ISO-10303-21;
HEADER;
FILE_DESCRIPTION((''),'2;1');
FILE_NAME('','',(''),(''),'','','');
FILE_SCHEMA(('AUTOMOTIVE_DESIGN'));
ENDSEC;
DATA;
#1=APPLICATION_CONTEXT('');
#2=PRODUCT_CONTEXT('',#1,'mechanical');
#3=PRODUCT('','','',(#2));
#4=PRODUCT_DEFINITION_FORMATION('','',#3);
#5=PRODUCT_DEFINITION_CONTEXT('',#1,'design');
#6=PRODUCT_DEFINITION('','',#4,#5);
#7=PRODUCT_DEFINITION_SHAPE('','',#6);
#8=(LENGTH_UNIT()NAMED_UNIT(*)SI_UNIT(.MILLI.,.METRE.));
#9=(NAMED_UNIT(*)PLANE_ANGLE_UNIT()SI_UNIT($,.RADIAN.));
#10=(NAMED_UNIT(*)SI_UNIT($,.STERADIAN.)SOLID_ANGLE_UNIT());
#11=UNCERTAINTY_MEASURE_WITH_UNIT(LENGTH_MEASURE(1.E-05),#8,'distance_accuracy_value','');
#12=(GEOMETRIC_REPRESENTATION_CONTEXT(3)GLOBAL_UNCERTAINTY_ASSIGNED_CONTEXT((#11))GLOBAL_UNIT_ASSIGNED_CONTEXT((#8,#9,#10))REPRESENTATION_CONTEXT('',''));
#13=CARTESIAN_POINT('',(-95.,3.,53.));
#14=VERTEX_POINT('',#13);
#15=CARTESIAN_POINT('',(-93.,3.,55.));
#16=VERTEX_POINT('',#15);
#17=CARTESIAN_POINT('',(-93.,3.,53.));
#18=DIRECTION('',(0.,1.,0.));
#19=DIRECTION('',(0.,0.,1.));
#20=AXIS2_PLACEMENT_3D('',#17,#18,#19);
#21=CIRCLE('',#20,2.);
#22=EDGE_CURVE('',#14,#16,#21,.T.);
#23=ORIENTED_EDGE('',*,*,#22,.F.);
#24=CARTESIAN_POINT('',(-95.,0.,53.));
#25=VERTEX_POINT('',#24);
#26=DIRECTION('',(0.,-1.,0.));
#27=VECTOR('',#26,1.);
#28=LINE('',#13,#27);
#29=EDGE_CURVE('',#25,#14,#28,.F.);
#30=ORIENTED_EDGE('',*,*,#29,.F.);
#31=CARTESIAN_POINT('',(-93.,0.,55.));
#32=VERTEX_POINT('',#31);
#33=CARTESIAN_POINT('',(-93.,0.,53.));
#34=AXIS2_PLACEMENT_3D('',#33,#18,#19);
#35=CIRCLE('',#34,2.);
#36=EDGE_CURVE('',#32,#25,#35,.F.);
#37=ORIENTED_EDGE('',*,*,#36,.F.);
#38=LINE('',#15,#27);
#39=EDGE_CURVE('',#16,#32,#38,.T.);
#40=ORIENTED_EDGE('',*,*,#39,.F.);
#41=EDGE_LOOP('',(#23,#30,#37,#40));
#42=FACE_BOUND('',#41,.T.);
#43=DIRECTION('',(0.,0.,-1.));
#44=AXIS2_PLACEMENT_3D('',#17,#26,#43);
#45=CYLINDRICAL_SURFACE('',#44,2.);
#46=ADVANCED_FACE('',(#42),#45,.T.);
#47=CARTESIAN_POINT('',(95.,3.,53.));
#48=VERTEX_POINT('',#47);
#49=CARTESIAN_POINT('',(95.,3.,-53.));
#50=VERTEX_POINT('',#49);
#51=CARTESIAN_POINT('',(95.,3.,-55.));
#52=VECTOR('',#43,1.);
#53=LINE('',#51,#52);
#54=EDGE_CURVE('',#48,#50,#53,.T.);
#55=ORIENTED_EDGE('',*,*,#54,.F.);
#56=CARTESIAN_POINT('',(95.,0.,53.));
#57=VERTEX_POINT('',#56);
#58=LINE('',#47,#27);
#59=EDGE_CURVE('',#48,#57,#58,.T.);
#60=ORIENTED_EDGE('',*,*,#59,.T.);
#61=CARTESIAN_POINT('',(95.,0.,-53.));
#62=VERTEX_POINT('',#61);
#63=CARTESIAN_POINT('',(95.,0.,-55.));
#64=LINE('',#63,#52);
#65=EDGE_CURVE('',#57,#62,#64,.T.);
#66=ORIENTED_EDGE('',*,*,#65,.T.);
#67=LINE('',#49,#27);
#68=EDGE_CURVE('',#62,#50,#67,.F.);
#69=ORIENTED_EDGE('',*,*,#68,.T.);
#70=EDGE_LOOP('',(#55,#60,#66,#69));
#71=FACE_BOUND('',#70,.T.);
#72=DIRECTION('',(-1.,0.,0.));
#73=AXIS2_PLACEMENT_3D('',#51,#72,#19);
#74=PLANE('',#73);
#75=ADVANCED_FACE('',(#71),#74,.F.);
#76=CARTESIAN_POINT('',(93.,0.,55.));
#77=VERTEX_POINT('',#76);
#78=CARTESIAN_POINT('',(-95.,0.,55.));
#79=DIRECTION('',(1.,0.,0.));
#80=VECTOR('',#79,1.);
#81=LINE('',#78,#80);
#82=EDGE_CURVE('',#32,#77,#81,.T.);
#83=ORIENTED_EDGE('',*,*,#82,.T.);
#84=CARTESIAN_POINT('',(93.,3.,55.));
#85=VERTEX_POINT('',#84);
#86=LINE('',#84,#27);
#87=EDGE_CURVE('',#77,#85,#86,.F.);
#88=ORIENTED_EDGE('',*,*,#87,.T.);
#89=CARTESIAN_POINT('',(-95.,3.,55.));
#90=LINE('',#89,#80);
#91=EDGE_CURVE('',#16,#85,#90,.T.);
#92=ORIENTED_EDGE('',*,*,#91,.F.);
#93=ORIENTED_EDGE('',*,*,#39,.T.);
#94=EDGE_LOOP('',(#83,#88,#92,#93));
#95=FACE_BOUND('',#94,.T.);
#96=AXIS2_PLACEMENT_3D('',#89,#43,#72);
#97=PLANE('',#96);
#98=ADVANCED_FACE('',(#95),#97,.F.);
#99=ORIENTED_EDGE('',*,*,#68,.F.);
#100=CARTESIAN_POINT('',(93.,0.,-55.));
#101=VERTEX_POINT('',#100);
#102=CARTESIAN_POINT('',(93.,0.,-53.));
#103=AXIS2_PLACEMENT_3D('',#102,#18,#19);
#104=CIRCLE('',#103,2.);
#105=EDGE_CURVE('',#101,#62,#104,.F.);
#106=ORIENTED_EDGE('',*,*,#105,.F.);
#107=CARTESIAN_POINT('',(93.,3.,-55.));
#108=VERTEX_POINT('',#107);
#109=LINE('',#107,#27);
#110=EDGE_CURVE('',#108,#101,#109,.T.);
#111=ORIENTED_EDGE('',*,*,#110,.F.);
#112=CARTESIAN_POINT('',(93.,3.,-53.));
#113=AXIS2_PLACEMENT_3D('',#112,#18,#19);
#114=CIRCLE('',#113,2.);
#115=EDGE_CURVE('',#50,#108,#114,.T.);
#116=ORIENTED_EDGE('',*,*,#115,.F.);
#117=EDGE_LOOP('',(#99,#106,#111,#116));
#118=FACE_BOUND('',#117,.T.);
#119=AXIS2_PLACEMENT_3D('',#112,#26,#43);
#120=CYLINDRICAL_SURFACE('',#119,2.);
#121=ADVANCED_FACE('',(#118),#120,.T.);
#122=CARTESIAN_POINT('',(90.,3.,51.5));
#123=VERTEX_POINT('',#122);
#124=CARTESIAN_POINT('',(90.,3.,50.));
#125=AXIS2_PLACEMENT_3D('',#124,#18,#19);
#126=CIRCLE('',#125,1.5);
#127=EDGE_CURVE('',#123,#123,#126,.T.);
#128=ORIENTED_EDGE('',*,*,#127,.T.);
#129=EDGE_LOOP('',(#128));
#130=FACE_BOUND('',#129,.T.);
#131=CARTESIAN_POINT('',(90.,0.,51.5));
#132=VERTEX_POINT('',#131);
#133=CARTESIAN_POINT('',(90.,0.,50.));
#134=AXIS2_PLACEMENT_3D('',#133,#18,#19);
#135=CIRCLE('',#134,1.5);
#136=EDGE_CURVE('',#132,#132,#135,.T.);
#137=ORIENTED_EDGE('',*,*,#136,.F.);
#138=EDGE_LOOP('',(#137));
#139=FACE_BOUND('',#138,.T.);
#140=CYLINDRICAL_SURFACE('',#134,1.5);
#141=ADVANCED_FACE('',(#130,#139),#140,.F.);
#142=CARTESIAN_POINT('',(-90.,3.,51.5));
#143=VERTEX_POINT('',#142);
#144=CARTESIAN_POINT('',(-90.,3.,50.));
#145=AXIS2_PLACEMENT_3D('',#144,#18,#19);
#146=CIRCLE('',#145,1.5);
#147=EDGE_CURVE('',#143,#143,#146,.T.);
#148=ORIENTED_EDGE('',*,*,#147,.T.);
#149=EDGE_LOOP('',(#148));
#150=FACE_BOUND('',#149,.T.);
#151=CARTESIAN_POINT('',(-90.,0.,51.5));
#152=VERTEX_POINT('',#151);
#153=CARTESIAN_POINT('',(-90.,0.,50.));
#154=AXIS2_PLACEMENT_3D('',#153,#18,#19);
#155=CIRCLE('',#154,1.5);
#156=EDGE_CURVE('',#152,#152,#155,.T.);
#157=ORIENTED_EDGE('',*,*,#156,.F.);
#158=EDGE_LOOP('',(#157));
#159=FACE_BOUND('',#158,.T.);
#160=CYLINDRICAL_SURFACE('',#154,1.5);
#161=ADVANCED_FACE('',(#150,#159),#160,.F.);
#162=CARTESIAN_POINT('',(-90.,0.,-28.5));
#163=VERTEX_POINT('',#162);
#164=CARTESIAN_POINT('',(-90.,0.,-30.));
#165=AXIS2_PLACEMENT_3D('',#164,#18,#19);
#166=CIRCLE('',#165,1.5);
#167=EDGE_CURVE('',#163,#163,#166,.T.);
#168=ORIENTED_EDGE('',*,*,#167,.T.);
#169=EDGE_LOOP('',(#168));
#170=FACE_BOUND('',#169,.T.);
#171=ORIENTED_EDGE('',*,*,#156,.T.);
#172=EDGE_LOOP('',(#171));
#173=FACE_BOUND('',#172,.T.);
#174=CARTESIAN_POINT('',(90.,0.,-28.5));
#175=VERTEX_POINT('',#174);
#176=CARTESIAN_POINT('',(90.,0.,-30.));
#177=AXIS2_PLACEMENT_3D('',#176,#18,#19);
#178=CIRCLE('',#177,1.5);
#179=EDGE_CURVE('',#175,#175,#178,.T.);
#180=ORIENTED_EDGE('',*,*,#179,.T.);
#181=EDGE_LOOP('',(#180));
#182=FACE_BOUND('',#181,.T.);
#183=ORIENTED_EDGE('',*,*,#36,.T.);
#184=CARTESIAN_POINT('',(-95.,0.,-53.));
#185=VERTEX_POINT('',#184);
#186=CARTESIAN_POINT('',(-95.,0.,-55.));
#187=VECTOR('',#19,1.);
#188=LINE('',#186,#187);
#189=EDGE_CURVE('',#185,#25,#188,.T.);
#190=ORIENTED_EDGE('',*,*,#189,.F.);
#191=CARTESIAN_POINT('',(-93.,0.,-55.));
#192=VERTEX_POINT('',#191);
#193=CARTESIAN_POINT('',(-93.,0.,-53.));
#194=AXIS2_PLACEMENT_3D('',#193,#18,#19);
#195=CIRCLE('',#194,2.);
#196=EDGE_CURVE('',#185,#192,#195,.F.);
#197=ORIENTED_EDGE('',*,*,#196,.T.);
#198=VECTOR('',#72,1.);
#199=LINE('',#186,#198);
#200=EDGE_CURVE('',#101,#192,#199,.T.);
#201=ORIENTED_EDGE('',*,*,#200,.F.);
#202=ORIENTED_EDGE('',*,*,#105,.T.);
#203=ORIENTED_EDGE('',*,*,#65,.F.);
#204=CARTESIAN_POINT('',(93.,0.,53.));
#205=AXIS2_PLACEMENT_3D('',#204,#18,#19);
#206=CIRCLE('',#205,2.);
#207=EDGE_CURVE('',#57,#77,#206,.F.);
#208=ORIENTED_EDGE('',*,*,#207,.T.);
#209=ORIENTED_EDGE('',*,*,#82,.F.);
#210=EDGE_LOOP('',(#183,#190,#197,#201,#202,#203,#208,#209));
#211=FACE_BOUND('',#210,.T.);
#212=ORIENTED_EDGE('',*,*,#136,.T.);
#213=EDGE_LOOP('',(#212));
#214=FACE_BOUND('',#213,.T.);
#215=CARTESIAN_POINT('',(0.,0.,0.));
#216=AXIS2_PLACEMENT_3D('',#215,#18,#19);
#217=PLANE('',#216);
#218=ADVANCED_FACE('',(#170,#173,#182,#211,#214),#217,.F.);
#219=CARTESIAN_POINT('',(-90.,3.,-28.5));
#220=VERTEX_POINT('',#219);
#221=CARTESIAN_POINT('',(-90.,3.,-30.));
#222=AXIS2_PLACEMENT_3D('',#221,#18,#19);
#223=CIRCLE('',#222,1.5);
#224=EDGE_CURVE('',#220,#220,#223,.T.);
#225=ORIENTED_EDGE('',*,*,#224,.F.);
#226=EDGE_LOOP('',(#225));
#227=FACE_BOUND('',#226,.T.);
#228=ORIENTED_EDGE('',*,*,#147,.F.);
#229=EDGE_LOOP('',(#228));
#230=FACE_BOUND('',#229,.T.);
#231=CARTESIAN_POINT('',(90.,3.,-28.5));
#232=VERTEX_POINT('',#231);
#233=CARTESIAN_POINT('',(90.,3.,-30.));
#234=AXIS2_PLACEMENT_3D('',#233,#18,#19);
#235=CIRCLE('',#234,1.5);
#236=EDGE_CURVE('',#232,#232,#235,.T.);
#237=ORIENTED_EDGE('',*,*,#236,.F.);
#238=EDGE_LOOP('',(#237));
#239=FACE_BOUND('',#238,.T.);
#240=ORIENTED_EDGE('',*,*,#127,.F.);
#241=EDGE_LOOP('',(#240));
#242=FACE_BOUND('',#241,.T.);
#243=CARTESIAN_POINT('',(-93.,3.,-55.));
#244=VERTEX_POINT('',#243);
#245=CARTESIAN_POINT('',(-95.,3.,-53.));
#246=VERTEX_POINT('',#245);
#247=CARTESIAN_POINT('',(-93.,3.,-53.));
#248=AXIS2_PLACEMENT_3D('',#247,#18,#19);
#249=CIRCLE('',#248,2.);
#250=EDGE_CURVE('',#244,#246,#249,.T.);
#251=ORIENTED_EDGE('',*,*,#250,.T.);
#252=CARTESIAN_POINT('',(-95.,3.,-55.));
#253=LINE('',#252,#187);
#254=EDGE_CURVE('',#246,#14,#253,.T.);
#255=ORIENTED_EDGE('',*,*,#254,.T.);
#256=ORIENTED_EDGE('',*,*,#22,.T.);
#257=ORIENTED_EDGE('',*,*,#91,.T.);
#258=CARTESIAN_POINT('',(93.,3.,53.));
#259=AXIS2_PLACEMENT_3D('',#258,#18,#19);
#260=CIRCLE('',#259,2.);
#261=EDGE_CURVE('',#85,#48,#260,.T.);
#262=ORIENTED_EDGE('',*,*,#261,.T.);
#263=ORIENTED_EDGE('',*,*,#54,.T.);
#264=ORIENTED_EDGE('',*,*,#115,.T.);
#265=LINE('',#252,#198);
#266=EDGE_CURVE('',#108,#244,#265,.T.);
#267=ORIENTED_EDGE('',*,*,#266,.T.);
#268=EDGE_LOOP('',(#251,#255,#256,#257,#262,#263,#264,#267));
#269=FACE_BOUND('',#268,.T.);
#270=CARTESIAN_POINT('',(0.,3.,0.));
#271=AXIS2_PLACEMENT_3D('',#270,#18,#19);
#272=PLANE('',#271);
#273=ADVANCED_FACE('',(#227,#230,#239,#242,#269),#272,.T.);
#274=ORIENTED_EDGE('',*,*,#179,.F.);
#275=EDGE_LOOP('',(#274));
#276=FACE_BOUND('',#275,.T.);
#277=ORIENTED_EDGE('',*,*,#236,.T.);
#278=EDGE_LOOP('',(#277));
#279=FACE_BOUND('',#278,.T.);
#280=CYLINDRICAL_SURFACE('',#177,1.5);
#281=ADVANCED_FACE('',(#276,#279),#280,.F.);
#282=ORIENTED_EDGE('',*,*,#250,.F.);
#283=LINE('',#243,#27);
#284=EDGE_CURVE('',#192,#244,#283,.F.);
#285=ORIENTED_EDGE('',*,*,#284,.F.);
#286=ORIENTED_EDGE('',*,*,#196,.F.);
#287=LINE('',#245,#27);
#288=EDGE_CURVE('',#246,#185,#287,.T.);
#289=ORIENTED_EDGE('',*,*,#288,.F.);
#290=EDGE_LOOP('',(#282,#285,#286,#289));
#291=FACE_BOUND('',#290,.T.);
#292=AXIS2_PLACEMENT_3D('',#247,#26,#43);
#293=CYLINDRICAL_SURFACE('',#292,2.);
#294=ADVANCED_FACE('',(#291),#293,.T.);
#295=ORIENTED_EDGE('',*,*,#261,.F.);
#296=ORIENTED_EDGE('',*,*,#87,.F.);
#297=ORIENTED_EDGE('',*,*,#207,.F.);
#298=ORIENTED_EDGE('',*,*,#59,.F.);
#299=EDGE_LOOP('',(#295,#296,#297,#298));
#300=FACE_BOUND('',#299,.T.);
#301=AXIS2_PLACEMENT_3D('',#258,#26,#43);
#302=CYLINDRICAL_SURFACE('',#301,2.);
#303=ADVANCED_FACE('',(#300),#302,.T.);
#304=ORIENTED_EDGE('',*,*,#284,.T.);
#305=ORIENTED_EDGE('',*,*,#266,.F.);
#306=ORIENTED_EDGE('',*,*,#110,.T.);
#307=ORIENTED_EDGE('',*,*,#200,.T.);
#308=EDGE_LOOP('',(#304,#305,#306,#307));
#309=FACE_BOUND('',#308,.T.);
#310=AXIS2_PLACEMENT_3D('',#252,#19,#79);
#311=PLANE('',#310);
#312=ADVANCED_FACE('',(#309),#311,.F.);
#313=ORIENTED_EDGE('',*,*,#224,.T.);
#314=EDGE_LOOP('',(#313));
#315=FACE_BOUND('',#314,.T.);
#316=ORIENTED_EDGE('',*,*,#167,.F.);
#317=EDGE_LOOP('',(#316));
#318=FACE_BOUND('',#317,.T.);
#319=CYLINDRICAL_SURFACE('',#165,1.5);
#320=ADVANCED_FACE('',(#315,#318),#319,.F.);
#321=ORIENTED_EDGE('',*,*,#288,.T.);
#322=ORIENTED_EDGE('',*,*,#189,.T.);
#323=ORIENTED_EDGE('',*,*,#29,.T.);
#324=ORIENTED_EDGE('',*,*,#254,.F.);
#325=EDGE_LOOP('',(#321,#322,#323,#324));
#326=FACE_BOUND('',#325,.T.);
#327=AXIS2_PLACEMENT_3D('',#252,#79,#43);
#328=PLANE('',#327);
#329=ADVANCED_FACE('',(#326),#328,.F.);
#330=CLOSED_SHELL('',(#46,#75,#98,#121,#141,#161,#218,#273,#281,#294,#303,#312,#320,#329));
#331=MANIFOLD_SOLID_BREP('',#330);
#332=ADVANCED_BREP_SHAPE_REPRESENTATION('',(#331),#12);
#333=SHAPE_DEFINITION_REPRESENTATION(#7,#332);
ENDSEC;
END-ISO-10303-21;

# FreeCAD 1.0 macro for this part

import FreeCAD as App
import Part
import Sketcher


def edges_at(feature, points):
    """Names of the edges that pass closest to the given points."""
    edges = feature.Shape.Edges
    near = lambda p: min(range(len(edges)), key=lambda i: edges[i].distToShape(Part.Vertex(*p))[0])
    return sorted({f"Edge{near(p) + 1}" for p in points})


def add_polygon(sketch, points):
    """Adds a closed chain of lines whose ends are joined by coincident constraints."""
    first, n = sketch.GeometryCount, len(points)
    for a, b in zip(points, points[1:] + points[:1]):
        sketch.addGeometry(Part.LineSegment(App.Vector(*a, 0), App.Vector(*b, 0)), False)
    for i in range(n):
        sketch.addConstraint(Sketcher.Constraint("Coincident", first + i, 2, first + (i + 1) % n, 1))

doc = App.newDocument("Part")
params = doc.addObject("Spreadsheet::Sheet", "Params")
for row, (alias, value) in enumerate([
    ("sketch1_width", "190 mm"),
    ("sketch1_height", "110 mm"),
    ("pad1_length", "3 mm"),
    ("sketch2_diameter", "3 mm"),
    ("fillet_radius", "2 mm"),
], start=1):
    params.set(f"A{row}", alias)
    params.set(f"B{row}", "=" + value)
    params.setAlias(f"B{row}", alias)

body = doc.addObject("PartDesign::Body", "Body")

sketch1 = body.newObject("Sketcher::SketchObject", "Sketch")
sketch1.AttachmentSupport = (doc.getObject("XZ_Plane"), [""])
sketch1.MapMode = "FlatFace"
add_polygon(sketch1, [(-95, -55), (-95, 55), (95, 55), (95, -55)])
sketch1.addConstraint([
    Sketcher.Constraint("Vertical", 0),
    Sketcher.Constraint("Horizontal", 1),
    Sketcher.Constraint("Vertical", 2),
    Sketcher.Constraint("Horizontal", 3),
    Sketcher.Constraint("Symmetric", 0, 2, 2, 2, -1, 1),
    Sketcher.Constraint("DistanceX", 1, 1, 1, 2, 190.0),
    Sketcher.Constraint("DistanceY", 0, 1, 0, 2, 110.0),
])
sketch1.setExpression("Constraints[9]", "Params.sketch1_width")
sketch1.setExpression("Constraints[10]", "Params.sketch1_height")
pad1 = body.newObject("PartDesign::Pad", "Pad")
pad1.Profile = sketch1
pad1.setExpression("Length", "Params.pad1_length")
pad1.Reversed = True

sketch2 = body.newObject("Sketcher::SketchObject", "Sketch001")
sketch2.AttachmentSupport = (doc.getObject("XZ_Plane"), [""])
sketch2.MapMode = "FlatFace"
sketch2.AttachmentOffset = App.Placement(App.Vector(0, 0, -3), App.Rotation())
sketch2.addGeometry([
    Part.Circle(App.Vector(-90, 50, 0), App.Vector(0, 0, 1), 1.5),
    Part.Circle(App.Vector(-90, -30, 0), App.Vector(0, 0, 1), 1.5),
    Part.Circle(App.Vector(90, -30, 0), App.Vector(0, 0, 1), 1.5),
    Part.Circle(App.Vector(90, 50, 0), App.Vector(0, 0, 1), 1.5),
], False)
sketch2.addConstraint([
    Sketcher.Constraint("Equal", 0, 1),
    Sketcher.Constraint("Equal", 1, 2),
    Sketcher.Constraint("Equal", 2, 3),
    Sketcher.Constraint("Symmetric", 1, 3, 2, 3, -2),
    Sketcher.Constraint("Symmetric", 0, 3, 3, 3, -2),
    Sketcher.Constraint("Vertical", 0, 3, 1, 3),
    Sketcher.Constraint("Diameter", 0, 3.0),
    Sketcher.Constraint("DistanceX", 0, 3, -1, 1, 90.0),
    Sketcher.Constraint("DistanceY", -1, 1, 0, 3, 50.0),
    Sketcher.Constraint("DistanceY", 1, 3, -1, 1, 30.0),
])
sketch2.setExpression("Constraints[6]", "Params.sketch2_diameter")
pocket1 = body.newObject("PartDesign::Pocket", "Pocket")
pocket1.Profile = sketch2
pocket1.Type = "ThroughAll"
pocket1.Reversed = True
doc.recompute()

fillet = body.newObject("PartDesign::Fillet", "Fillet")
fillet.Base = (pocket1, edges_at(pocket1, [
    (-95, 1.5, -55),
    (95, 1.5, -55),
    (95, 1.5, 55),
    (-95, 1.5, 55),
]))
fillet.setExpression("Radius", "Params.fillet_radius")

doc.recompute()
